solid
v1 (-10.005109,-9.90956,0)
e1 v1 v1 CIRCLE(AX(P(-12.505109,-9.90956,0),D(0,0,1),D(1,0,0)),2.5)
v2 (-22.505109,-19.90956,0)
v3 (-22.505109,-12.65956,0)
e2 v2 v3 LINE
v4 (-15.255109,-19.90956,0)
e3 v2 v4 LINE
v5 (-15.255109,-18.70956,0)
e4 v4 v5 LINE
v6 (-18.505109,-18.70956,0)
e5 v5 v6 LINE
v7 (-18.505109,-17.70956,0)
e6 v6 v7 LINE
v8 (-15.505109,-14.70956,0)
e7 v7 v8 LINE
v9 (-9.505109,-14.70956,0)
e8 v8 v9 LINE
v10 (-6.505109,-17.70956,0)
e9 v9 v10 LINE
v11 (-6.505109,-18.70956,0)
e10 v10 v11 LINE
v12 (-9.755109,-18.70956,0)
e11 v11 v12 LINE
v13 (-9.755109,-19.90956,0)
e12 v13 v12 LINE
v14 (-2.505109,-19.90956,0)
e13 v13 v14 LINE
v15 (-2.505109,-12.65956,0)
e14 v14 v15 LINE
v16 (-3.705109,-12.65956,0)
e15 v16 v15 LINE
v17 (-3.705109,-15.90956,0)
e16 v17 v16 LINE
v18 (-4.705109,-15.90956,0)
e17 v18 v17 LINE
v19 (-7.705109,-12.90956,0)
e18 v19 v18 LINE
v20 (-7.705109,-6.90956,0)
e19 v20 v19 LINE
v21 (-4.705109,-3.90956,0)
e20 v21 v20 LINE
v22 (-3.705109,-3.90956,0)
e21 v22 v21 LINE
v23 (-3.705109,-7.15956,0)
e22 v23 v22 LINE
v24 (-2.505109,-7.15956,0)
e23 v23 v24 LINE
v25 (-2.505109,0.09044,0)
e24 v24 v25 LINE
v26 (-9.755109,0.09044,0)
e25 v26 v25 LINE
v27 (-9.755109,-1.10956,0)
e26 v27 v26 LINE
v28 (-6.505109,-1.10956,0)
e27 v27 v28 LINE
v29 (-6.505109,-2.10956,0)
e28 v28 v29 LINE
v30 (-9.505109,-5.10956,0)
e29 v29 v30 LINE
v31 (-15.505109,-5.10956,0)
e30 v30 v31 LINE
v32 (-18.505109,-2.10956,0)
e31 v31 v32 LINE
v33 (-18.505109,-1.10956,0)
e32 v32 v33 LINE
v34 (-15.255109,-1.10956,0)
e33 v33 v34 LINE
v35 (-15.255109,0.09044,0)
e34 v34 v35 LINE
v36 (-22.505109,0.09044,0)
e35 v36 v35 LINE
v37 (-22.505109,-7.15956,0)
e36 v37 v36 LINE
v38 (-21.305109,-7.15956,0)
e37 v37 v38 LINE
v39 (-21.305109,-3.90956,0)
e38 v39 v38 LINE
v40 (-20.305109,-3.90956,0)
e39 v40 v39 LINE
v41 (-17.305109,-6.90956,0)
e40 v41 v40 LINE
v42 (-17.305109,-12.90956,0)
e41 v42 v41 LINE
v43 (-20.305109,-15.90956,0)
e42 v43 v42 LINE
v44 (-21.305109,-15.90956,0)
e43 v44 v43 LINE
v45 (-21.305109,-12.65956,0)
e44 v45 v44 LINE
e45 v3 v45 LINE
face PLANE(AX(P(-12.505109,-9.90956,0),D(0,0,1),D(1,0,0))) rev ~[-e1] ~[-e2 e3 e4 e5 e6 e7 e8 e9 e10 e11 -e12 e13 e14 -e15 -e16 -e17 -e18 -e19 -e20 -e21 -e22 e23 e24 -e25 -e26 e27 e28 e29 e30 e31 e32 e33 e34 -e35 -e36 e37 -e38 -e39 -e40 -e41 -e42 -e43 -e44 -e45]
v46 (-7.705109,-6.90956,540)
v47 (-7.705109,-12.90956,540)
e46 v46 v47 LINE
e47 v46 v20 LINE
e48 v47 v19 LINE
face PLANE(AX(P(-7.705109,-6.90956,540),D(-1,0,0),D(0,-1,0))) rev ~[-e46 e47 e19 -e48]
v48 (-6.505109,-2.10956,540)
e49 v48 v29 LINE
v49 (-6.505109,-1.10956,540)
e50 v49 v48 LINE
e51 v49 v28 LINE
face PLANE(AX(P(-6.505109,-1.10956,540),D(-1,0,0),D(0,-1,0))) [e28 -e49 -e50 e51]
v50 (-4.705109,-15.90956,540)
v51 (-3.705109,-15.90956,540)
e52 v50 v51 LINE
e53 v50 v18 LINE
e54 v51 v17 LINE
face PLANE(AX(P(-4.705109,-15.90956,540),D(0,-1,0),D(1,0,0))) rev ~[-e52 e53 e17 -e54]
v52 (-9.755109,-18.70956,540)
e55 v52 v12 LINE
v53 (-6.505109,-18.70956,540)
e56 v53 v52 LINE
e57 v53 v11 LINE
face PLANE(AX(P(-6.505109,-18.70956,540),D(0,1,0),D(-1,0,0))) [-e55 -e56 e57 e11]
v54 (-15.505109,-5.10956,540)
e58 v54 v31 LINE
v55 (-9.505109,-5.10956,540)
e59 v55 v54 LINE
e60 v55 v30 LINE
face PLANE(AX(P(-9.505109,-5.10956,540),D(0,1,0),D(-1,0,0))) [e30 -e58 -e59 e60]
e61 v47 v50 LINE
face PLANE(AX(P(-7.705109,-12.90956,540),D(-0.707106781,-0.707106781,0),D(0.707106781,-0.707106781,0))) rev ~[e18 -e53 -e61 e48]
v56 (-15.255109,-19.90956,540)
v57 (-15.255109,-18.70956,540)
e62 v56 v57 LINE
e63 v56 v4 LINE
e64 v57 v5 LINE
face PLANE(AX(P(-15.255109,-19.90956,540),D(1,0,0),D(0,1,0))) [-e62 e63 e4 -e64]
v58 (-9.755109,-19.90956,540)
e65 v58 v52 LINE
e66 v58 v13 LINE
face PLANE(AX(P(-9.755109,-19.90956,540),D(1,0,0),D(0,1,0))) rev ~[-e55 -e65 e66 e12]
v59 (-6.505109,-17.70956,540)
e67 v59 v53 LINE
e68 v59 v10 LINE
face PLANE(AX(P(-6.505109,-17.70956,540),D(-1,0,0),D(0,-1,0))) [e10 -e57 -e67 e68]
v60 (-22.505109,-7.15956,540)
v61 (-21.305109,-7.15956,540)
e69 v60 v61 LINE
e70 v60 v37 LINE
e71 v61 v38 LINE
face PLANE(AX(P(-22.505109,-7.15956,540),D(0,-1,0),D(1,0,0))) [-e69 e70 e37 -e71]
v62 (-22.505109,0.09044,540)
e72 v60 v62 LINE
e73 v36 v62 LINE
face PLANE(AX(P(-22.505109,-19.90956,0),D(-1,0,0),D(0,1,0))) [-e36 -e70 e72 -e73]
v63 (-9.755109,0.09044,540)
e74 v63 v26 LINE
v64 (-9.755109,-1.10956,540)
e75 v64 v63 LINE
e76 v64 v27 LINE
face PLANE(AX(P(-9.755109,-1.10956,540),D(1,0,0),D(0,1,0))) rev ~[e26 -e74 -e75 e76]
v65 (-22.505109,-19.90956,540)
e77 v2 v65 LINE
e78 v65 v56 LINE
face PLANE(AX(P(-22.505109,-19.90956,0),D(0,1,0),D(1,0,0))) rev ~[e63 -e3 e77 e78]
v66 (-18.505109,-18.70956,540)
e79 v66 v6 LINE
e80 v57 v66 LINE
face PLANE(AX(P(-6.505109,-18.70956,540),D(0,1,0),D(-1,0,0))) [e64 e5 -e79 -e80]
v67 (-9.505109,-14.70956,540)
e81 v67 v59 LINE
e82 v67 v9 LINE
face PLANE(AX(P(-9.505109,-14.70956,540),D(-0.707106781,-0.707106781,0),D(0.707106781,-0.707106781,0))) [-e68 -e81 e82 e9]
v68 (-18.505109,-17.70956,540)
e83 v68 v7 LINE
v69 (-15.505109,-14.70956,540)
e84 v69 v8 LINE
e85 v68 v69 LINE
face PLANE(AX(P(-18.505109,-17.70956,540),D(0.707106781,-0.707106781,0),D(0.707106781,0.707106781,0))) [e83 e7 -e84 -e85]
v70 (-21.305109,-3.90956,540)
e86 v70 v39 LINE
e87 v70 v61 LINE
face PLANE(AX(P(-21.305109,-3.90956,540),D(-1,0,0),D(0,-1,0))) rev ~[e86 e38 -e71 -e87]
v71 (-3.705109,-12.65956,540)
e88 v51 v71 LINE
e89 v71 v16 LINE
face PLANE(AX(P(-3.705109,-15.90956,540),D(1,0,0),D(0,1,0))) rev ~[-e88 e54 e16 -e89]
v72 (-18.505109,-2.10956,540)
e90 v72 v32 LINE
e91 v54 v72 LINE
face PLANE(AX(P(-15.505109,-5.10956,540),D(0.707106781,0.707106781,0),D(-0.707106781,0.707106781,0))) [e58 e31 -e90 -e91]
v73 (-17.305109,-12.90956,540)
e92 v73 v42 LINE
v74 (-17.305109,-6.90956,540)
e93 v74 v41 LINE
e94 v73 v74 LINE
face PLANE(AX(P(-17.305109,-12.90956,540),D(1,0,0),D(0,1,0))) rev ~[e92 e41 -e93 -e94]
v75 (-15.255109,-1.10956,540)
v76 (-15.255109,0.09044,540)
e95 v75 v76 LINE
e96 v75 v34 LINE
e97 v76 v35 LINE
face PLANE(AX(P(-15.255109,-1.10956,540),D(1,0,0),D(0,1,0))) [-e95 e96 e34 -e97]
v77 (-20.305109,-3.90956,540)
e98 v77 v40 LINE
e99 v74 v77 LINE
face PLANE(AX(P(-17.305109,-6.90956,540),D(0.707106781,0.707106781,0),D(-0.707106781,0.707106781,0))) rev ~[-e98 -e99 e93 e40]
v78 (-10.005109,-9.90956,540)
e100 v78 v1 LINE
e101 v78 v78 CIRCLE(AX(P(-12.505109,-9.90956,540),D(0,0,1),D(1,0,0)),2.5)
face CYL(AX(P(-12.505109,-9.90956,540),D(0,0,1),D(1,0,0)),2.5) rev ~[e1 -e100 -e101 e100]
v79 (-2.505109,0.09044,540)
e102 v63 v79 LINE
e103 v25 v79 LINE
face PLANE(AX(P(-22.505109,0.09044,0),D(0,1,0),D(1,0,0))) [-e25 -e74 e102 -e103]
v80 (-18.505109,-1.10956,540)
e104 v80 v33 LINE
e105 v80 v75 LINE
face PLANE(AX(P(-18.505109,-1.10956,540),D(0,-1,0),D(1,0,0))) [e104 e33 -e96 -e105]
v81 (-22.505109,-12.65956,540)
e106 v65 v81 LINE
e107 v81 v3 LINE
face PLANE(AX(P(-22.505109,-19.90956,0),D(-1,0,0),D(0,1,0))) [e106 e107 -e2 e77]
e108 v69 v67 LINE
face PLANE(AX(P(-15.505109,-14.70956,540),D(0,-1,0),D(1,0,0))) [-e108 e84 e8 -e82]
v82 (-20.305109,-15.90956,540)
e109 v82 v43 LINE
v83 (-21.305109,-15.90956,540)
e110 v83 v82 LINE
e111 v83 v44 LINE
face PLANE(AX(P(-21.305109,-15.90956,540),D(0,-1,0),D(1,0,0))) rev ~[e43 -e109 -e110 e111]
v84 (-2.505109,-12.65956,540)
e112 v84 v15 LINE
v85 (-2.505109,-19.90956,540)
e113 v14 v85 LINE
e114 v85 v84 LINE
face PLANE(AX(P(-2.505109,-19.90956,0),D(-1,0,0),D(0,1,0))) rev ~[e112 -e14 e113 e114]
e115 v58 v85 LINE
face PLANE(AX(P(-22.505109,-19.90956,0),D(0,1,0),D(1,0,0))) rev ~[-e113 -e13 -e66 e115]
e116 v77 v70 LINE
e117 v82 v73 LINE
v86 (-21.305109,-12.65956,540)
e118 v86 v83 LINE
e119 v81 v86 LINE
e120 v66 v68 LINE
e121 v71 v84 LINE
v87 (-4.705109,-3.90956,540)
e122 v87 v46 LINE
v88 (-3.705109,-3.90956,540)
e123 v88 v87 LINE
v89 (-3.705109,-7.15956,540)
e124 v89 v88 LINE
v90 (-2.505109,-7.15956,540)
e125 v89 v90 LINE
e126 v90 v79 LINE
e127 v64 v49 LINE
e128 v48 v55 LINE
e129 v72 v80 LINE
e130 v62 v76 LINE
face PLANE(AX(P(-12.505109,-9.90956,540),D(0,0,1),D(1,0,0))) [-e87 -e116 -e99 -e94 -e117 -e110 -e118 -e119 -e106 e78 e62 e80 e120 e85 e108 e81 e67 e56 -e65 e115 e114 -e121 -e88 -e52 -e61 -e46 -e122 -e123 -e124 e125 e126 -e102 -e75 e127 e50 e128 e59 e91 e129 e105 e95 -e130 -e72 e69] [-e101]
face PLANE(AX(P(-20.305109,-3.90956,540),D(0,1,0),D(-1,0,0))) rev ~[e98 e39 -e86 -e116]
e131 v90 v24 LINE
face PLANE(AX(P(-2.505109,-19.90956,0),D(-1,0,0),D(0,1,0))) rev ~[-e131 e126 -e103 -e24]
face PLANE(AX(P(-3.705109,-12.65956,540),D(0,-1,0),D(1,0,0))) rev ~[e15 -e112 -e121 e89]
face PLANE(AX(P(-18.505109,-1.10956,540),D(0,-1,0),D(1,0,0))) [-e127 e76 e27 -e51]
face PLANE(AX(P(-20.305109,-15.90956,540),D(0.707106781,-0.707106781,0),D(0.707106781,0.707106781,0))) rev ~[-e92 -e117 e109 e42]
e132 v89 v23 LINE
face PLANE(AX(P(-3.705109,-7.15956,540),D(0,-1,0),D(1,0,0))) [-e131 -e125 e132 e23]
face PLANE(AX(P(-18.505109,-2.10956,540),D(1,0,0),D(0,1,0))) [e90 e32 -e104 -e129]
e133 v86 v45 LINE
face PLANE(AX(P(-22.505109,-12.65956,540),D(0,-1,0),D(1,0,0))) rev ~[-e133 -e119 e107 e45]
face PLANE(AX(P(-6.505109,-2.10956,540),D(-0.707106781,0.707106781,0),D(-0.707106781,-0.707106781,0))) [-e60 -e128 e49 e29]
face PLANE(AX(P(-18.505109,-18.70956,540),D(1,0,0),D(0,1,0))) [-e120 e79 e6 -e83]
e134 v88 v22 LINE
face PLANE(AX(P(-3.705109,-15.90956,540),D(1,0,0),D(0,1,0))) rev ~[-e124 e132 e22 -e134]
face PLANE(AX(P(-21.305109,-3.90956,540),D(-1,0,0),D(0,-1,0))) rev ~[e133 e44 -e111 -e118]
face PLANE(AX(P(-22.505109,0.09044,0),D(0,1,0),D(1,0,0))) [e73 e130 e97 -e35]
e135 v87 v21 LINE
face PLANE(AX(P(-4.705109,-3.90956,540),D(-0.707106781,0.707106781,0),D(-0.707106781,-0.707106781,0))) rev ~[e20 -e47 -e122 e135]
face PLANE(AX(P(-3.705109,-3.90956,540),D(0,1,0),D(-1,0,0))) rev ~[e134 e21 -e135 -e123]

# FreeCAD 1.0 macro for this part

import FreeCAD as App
import Part
import Sketcher
Q = App.Units.Quantity

doc = App.newDocument("Part")
body = doc.addObject("PartDesign::Body", "Body")

# Sketch on XY plane
sketch1 = body.newObject("Sketcher::SketchObject", "Sketch")
sketch1.AttachmentSupport = (doc.getObject("XY_Plane"), [""])
sketch1.MapMode = "FlatFace"
sketch1.addGeometry([
    Part.LineSegment(App.Vector(-23, 0, 0), App.Vector(-23, -20, 0)),
    Part.LineSegment(App.Vector(-23, -20, 0), App.Vector(-3, -20, 0)),
    Part.LineSegment(App.Vector(-3, -20, 0), App.Vector(-3, 0, 0)),
    Part.LineSegment(App.Vector(-3, 0, 0), App.Vector(-23, 0, 0)),
], False)
sketch1.addConstraint([
    Sketcher.Constraint("Coincident", 0, 2, 1, 1),
    Sketcher.Constraint("Coincident", 1, 2, 2, 1),
    Sketcher.Constraint("Coincident", 2, 2, 3, 1),
    Sketcher.Constraint("Coincident", 3, 2, 0, 1),
    Sketcher.Constraint("Vertical", 0),
    Sketcher.Constraint("Horizontal", 1),
    Sketcher.Constraint("Vertical", 2),
    Sketcher.Constraint("Horizontal", 3),
    Sketcher.Constraint("Equal", 3, 0),
    Sketcher.Constraint("DistanceX", 1, 1, 1, 2, Q("20 mm")),
    Sketcher.Constraint("DistanceX", 0, 2, -1, 1, Q("22.505109 mm")),
    Sketcher.Constraint("DistanceY", 0, 2, -1, 1, Q("19.90956 mm")),
])
pad1 = body.newObject("PartDesign::Pad", "Pad")
pad1.Profile = sketch1
pad1.Length = 540

# Sketch on XY plane
sketch2 = body.newObject("Sketcher::SketchObject", "Sketch001")
sketch2.AttachmentSupport = (doc.getObject("XY_Plane"), [""])
sketch2.MapMode = "FlatFace"
sketch2.AttachmentOffset = App.Placement(App.Vector(0, 0, 540), App.Rotation())
sketch2.addGeometry([
    Part.LineSegment(App.Vector(-22.5, -7.2, 0), App.Vector(-22.5, -12.7, 0)),  # 0
    Part.LineSegment(App.Vector(-22.5, -12.7, 0), App.Vector(-21.3, -12.7, 0)),  # 1
    Part.LineSegment(App.Vector(-21.3, -12.7, 0), App.Vector(-21.3, -7.2, 0)),  # 2
    Part.LineSegment(App.Vector(-21.3, -7.2, 0), App.Vector(-22.5, -7.2, 0)),  # 3
    Part.LineSegment(App.Vector(-15.3, 0.1, 0), App.Vector(-15.3, -1.1, 0)),  # 4
    Part.LineSegment(App.Vector(-15.3, -1.1, 0), App.Vector(-9.8, -1.1, 0)),  # 5
    Part.LineSegment(App.Vector(-9.8, -1.1, 0), App.Vector(-9.8, 0.1, 0)),  # 6
    Part.LineSegment(App.Vector(-9.8, 0.1, 0), App.Vector(-15.3, 0.1, 0)),  # 7
    Part.LineSegment(App.Vector(-3.7, -7.2, 0), App.Vector(-3.7, -12.7, 0)),  # 8
    Part.LineSegment(App.Vector(-3.7, -12.7, 0), App.Vector(-2.5, -12.7, 0)),  # 9
    Part.LineSegment(App.Vector(-2.5, -12.7, 0), App.Vector(-2.5, -7.2, 0)),  # 10
    Part.LineSegment(App.Vector(-2.5, -7.2, 0), App.Vector(-3.7, -7.2, 0)),  # 11
    Part.LineSegment(App.Vector(-15.3, -18.7, 0), App.Vector(-15.3, -19.9, 0)),  # 12
    Part.LineSegment(App.Vector(-15.3, -19.9, 0), App.Vector(-9.8, -19.9, 0)),  # 13
    Part.LineSegment(App.Vector(-9.8, -19.9, 0), App.Vector(-9.8, -18.7, 0)),  # 14
    Part.LineSegment(App.Vector(-9.8, -18.7, 0), App.Vector(-15.3, -18.7, 0)),  # 15
], False)
sketch2.addConstraint([
    Sketcher.Constraint("Coincident", 0, 2, 1, 1),
    Sketcher.Constraint("Coincident", 1, 2, 2, 1),
    Sketcher.Constraint("Coincident", 2, 2, 3, 1),
    Sketcher.Constraint("Coincident", 3, 2, 0, 1),
    Sketcher.Constraint("Coincident", 4, 2, 5, 1),
    Sketcher.Constraint("Coincident", 5, 2, 6, 1),
    Sketcher.Constraint("Coincident", 6, 2, 7, 1),
    Sketcher.Constraint("Coincident", 7, 2, 4, 1),
    Sketcher.Constraint("Coincident", 8, 2, 9, 1),
    Sketcher.Constraint("Coincident", 9, 2, 10, 1),
    Sketcher.Constraint("Coincident", 10, 2, 11, 1),
    Sketcher.Constraint("Coincident", 11, 2, 8, 1),
    Sketcher.Constraint("Coincident", 12, 2, 13, 1),
    Sketcher.Constraint("Coincident", 13, 2, 14, 1),
    Sketcher.Constraint("Coincident", 14, 2, 15, 1),
    Sketcher.Constraint("Coincident", 15, 2, 12, 1),
    Sketcher.Constraint("Vertical", 0),
    Sketcher.Constraint("Horizontal", 1),
    Sketcher.Constraint("Vertical", 2),
    Sketcher.Constraint("Horizontal", 3),
    Sketcher.Constraint("Vertical", 4),
    Sketcher.Constraint("Horizontal", 5),
    Sketcher.Constraint("Vertical", 6),
    Sketcher.Constraint("Horizontal", 7),
    Sketcher.Constraint("Vertical", 8),
    Sketcher.Constraint("Horizontal", 9),
    Sketcher.Constraint("Vertical", 10),
    Sketcher.Constraint("Horizontal", 11),
    Sketcher.Constraint("Vertical", 12),
    Sketcher.Constraint("Horizontal", 13),
    Sketcher.Constraint("Vertical", 14),
    Sketcher.Constraint("Horizontal", 15),
    Sketcher.Constraint("Horizontal", 1, 2, 8, 2),
    Sketcher.Constraint("Horizontal", 3, 2, 10, 2),
    Sketcher.Constraint("Vertical", 7, 2, 12, 2),
    Sketcher.Constraint("Vertical", 6, 2, 13, 2),
    Sketcher.Constraint("Equal", 3, 9),
    Sketcher.Constraint("Equal", 15, 0),
    Sketcher.Constraint("Equal", 11, 4),
    Sketcher.Constraint("Equal", 6, 12),
    Sketcher.Constraint("DistanceX", 1, 1, 1, 2, Q("1.2 mm")),
    Sketcher.Constraint("DistanceX", 5, 1, 5, 2, Q("5.5 mm")),
    Sketcher.Constraint("DistanceX", 1, 2, 8, 2, Q("17.6 mm")),
    Sketcher.Constraint("DistanceX", 2, 2, 4, 2, Q("6.05 mm")),
    Sketcher.Constraint("DistanceY", 2, 2, 4, 2, Q("6.05 mm")),
    Sketcher.Constraint("DistanceY", 12, 2, 1, 2, Q("7.25 mm")),
    Sketcher.Constraint("DistanceX", 0, 2, -1, 1, Q("22.505109 mm")),
    Sketcher.Constraint("DistanceY", 0, 2, -1, 1, Q("12.65956 mm")),
])
pocket1 = body.newObject("PartDesign::Pocket", "Pocket")
pocket1.Profile = sketch2
pocket1.Type = "ThroughAll"

# Sketch on XY plane
sketch3 = body.newObject("Sketcher::SketchObject", "Sketch002")
sketch3.AttachmentSupport = (doc.getObject("XY_Plane"), [""])
sketch3.MapMode = "FlatFace"
sketch3.AttachmentOffset = App.Placement(App.Vector(0, 0, 540), App.Rotation())
sketch3.addGeometry([
    Part.LineSegment(App.Vector(-21.3, -15.9, 0), App.Vector(-20.3, -15.9, 0)),  # 0
    Part.LineSegment(App.Vector(-20.3, -15.9, 0), App.Vector(-17.3, -12.9, 0)),  # 1
    Part.LineSegment(App.Vector(-17.3, -12.9, 0), App.Vector(-17.3, -6.9, 0)),  # 2
    Part.LineSegment(App.Vector(-17.3, -6.9, 0), App.Vector(-20.3, -3.9, 0)),  # 3
    Part.LineSegment(App.Vector(-20.3, -3.9, 0), App.Vector(-21.3, -3.9, 0)),  # 4
    Part.LineSegment(App.Vector(-21.3, -3.9, 0), App.Vector(-21.3, -15.9, 0)),  # 5
    Part.LineSegment(App.Vector(-6.5, -1.1, 0), App.Vector(-18.5, -1.1, 0)),  # 6
    Part.LineSegment(App.Vector(-18.5, -1.1, 0), App.Vector(-18.5, -2.1, 0)),  # 7
    Part.LineSegment(App.Vector(-18.5, -2.1, 0), App.Vector(-15.5, -5.1, 0)),  # 8
    Part.LineSegment(App.Vector(-15.5, -5.1, 0), App.Vector(-9.5, -5.1, 0)),  # 9
    Part.LineSegment(App.Vector(-9.5, -5.1, 0), App.Vector(-6.5, -2.1, 0)),  # 10
    Part.LineSegment(App.Vector(-6.5, -2.1, 0), App.Vector(-6.5, -1.1, 0)),  # 11
    Part.LineSegment(App.Vector(-3.7, -3.9, 0), App.Vector(-4.7, -3.9, 0)),  # 12
    Part.LineSegment(App.Vector(-4.7, -3.9, 0), App.Vector(-7.7, -6.9, 0)),  # 13
    Part.LineSegment(App.Vector(-7.7, -6.9, 0), App.Vector(-7.7, -12.9, 0)),  # 14
    Part.LineSegment(App.Vector(-7.7, -12.9, 0), App.Vector(-4.7, -15.9, 0)),  # 15
    Part.LineSegment(App.Vector(-4.7, -15.9, 0), App.Vector(-3.7, -15.9, 0)),  # 16
    Part.LineSegment(App.Vector(-3.7, -15.9, 0), App.Vector(-3.7, -3.9, 0)),  # 17
    Part.LineSegment(App.Vector(-18.5, -18.7, 0), App.Vector(-6.5, -18.7, 0)),  # 18
    Part.LineSegment(App.Vector(-6.5, -18.7, 0), App.Vector(-6.5, -17.7, 0)),  # 19
    Part.LineSegment(App.Vector(-6.5, -17.7, 0), App.Vector(-9.5, -14.7, 0)),  # 20
    Part.LineSegment(App.Vector(-9.5, -14.7, 0), App.Vector(-15.5, -14.7, 0)),  # 21
    Part.LineSegment(App.Vector(-15.5, -14.7, 0), App.Vector(-18.5, -17.7, 0)),  # 22
    Part.LineSegment(App.Vector(-18.5, -17.7, 0), App.Vector(-18.5, -18.7, 0)),  # 23
], False)
sketch3.addConstraint([
    Sketcher.Constraint("Coincident", 0, 2, 1, 1),
    Sketcher.Constraint("Coincident", 1, 2, 2, 1),
    Sketcher.Constraint("Coincident", 2, 2, 3, 1),
    Sketcher.Constraint("Coincident", 3, 2, 4, 1),
    Sketcher.Constraint("Coincident", 4, 2, 5, 1),
    Sketcher.Constraint("Coincident", 5, 2, 0, 1),
    Sketcher.Constraint("Coincident", 6, 2, 7, 1),
    Sketcher.Constraint("Coincident", 7, 2, 8, 1),
    Sketcher.Constraint("Coincident", 8, 2, 9, 1),
    Sketcher.Constraint("Coincident", 9, 2, 10, 1),
    Sketcher.Constraint("Coincident", 10, 2, 11, 1),
    Sketcher.Constraint("Coincident", 11, 2, 6, 1),
    Sketcher.Constraint("Coincident", 12, 2, 13, 1),
    Sketcher.Constraint("Coincident", 13, 2, 14, 1),
    Sketcher.Constraint("Coincident", 14, 2, 15, 1),
    Sketcher.Constraint("Coincident", 15, 2, 16, 1),
    Sketcher.Constraint("Coincident", 16, 2, 17, 1),
    Sketcher.Constraint("Coincident", 17, 2, 12, 1),
    Sketcher.Constraint("Coincident", 18, 2, 19, 1),
    Sketcher.Constraint("Coincident", 19, 2, 20, 1),
    Sketcher.Constraint("Coincident", 20, 2, 21, 1),
    Sketcher.Constraint("Coincident", 21, 2, 22, 1),
    Sketcher.Constraint("Coincident", 22, 2, 23, 1),
    Sketcher.Constraint("Coincident", 23, 2, 18, 1),
    Sketcher.Constraint("Horizontal", 0),
    Sketcher.Constraint("Vertical", 2),
    Sketcher.Constraint("Horizontal", 4),
    Sketcher.Constraint("Vertical", 5),
    Sketcher.Constraint("Horizontal", 6),
    Sketcher.Constraint("Vertical", 7),
    Sketcher.Constraint("Horizontal", 9),
    Sketcher.Constraint("Vertical", 11),
    Sketcher.Constraint("Horizontal", 12),
    Sketcher.Constraint("Vertical", 14),
    Sketcher.Constraint("Horizontal", 16),
    Sketcher.Constraint("Vertical", 17),
    Sketcher.Constraint("Horizontal", 18),
    Sketcher.Constraint("Vertical", 19),
    Sketcher.Constraint("Horizontal", 21),
    Sketcher.Constraint("Vertical", 23),
    Sketcher.Constraint("Perpendicular", 1, 3),
    Sketcher.Constraint("Parallel", 3, 8),
    Sketcher.Constraint("Perpendicular", 8, 10),
    Sketcher.Constraint("Parallel", 10, 13),
    Sketcher.Constraint("Perpendicular", 13, 15),
    Sketcher.Constraint("Parallel", 15, 20),
    Sketcher.Constraint("Perpendicular", 20, 22),
    Sketcher.Constraint("Horizontal", 7, 2, 10, 2),
    Sketcher.Constraint("Horizontal", 4, 2, 12, 2),
    Sketcher.Constraint("Horizontal", 2, 2, 13, 2),
    Sketcher.Constraint("Horizontal", 1, 2, 14, 2),
    Sketcher.Constraint("Horizontal", 5, 2, 15, 2),
    Sketcher.Constraint("Horizontal", 19, 2, 22, 2),
    Sketcher.Constraint("Vertical", 0, 2, 3, 2),
    Sketcher.Constraint("Vertical", 12, 2, 15, 2),
    Sketcher.Constraint("Vertical", 11, 2, 18, 2),
    Sketcher.Constraint("Vertical", 9, 2, 20, 2),
    Sketcher.Constraint("Vertical", 8, 2, 21, 2),
    Sketcher.Constraint("Equal", 4, 12),
    Sketcher.Constraint("Equal", 21, 2),
    Sketcher.Constraint("Equal", 18, 5),
    Sketcher.Constraint("Equal", 16, 7),
    Sketcher.Constraint("Equal", 11, 19),
    Sketcher.Constraint("DistanceX", 0, 1, 0, 2, Q("1 mm")),
    Sketcher.Constraint("DistanceX", 6, 2, 6, 1, Q("12 mm")),
    Sketcher.Constraint("DistanceX", 9, 1, 9, 2, Q("6 mm")),
    Sketcher.Constraint("DistanceX", 3, 2, 6, 2, Q("1.8 mm")),
    Sketcher.Constraint("DistanceY", 3, 2, 6, 2, Q("2.8 mm")),
    Sketcher.Constraint("DistanceX", 10, 2, 12, 2, Q("1.8 mm")),
    Sketcher.Constraint("DistanceY", 18, 2, 15, 2, Q("2.8 mm")),
    Sketcher.Constraint("DistanceX", 0, 2, -1, 1, Q("20.305109 mm")),
    Sketcher.Constraint("DistanceY", 0, 2, -1, 1, Q("15.90956 mm")),
])
pocket2 = body.newObject("PartDesign::Pocket", "Pocket001")
pocket2.Profile = sketch3
pocket2.Type = "ThroughAll"

# Sketch on XY plane
sketch4 = body.newObject("Sketcher::SketchObject", "Sketch003")
sketch4.AttachmentSupport = (doc.getObject("XY_Plane"), [""])
sketch4.MapMode = "FlatFace"
sketch4.AttachmentOffset = App.Placement(App.Vector(0, 0, 540), App.Rotation())
sketch4.addGeometry(Part.Circle(App.Vector(-12.5, -9.9, 0), App.Vector(0, 0, 1), 2.5), False)
sketch4.addConstraint([
    Sketcher.Constraint("Diameter", 0, Q("5 mm")),
    Sketcher.Constraint("DistanceX", 0, 3, -1, 1, Q("12.505109 mm")),
    Sketcher.Constraint("DistanceY", 0, 3, -1, 1, Q("9.90956 mm")),
])
pocket3 = body.newObject("PartDesign::Pocket", "Pocket002")
pocket3.Profile = sketch4
pocket3.Type = "ThroughAll"

doc.recompute()
